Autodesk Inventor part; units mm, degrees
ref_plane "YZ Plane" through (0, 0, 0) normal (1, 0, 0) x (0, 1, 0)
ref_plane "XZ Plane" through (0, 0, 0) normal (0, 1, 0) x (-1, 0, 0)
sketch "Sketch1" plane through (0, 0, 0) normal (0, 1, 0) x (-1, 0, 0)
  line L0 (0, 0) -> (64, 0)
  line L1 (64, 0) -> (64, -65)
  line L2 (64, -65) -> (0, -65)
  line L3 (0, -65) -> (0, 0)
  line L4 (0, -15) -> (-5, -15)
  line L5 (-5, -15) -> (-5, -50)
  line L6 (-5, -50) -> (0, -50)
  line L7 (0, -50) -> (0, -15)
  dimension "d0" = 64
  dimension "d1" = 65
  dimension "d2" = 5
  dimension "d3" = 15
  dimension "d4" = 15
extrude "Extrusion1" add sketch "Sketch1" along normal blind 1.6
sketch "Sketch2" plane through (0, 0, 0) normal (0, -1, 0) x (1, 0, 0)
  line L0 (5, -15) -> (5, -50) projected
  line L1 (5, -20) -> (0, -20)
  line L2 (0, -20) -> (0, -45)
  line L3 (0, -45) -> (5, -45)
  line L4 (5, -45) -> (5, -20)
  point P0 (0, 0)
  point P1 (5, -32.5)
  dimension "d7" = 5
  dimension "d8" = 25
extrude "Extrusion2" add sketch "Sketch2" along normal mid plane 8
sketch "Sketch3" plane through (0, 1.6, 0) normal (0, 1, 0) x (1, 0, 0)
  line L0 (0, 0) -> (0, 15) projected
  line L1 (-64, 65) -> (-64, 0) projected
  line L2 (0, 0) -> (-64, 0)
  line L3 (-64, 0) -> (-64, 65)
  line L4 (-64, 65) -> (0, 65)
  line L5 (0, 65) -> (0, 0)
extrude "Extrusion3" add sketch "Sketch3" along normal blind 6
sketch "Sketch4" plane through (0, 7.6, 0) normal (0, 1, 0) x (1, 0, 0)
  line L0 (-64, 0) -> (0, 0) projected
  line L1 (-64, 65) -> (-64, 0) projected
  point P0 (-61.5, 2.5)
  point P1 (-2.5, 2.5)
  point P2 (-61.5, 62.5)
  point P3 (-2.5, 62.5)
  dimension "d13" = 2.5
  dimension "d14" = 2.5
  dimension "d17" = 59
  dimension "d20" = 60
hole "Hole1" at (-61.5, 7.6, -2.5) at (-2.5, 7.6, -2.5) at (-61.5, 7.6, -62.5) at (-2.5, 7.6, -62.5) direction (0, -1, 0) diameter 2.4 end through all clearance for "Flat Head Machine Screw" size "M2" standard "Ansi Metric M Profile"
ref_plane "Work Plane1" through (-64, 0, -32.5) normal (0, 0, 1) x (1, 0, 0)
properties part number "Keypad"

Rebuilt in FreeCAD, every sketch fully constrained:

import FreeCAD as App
import Part
import Sketcher

V = App.Vector


def add_polygon(sketch, points):
    """Adds a closed chain of lines whose ends are joined by coincident constraints."""
    first, n = sketch.GeometryCount, len(points)
    for a, b in zip(points, points[1:] + points[:1]):
        sketch.addGeometry(Part.LineSegment(App.Vector(*a, 0), App.Vector(*b, 0)), False)
    for i in range(n):
        sketch.addConstraint(Sketcher.Constraint("Coincident", first + i, 2, first + (i + 1) % n, 1))

doc = App.newDocument("Part")
params = doc.addObject("Spreadsheet::Sheet", "Params")
for row, (alias, value) in enumerate([
    ("sketch1_width", "64 mm"),
    ("sketch1_width2", "5 mm"),
    ("sketch1_height", "15 mm"),
    ("sketch1_height2", "65 mm"),
    ("pad1_length", "1.6 mm"),
    ("sketch2_width", "5 mm"),
    ("sketch2_height", "25 mm"),
    ("pad2_length", "8 mm"),
    ("sketch3_width", "64 mm"),
    ("sketch3_height", "65 mm"),
    ("pad3_length", "6 mm"),
    ("sketch4_diameter", "2.4 mm"),
    ("hole_diameter", "2.4 mm"),
], start=1):
    params.set(f"A{row}", alias)
    params.set(f"B{row}", "=" + value)
    params.setAlias(f"B{row}", alias)

body = doc.addObject("PartDesign::Body", "Body")

# Sketch on XZ plane
sketch1 = doc.addObject("Sketcher::SketchObject", "Sketch")
body.addObject(sketch1)
sketch1.AttachmentSupport = (doc.XZ_Plane, [""])
sketch1.MapMode = "FlatFace"
add_polygon(sketch1, [(-64, 0), (0, 0), (0, -15), (5, -15), (5, -50), (0, -50), (0, -65), (-64, -65)])  # lines 0-7
sketch1.addConstraint(Sketcher.Constraint("Horizontal", 0))
sketch1.addConstraint(Sketcher.Constraint("Vertical", 1))
sketch1.addConstraint(Sketcher.Constraint("Horizontal", 2))
sketch1.addConstraint(Sketcher.Constraint("Vertical", 3))
sketch1.addConstraint(Sketcher.Constraint("Horizontal", 4))
sketch1.addConstraint(Sketcher.Constraint("Vertical", 5))
sketch1.addConstraint(Sketcher.Constraint("Horizontal", 6))
sketch1.addConstraint(Sketcher.Constraint("Vertical", 7))
sketch1.addConstraint(Sketcher.Constraint("Coincident", 0, 2, -1, 1))
sketch1.addConstraint(Sketcher.Constraint("PointOnObject", 4, 2, -2))
sketch1.addConstraint(Sketcher.Constraint("Equal", 1, 5))
sketch1.addConstraint(Sketcher.Constraint("DistanceX", 0, 1, 0, 2, 64.0))
sketch1.addConstraint(Sketcher.Constraint("DistanceX", 2, 1, 2, 2, 5.0))
sketch1.addConstraint(Sketcher.Constraint("DistanceY", 1, 2, 1, 1, 15.0))
sketch1.addConstraint(Sketcher.Constraint("DistanceY", 7, 1, 7, 2, 65.0))
sketch1.setExpression("Constraints[19]", "Params.sketch1_width")
sketch1.setExpression("Constraints[20]", "Params.sketch1_width2")
sketch1.setExpression("Constraints[21]", "Params.sketch1_height")
sketch1.setExpression("Constraints[22]", "Params.sketch1_height2")
pad1 = doc.addObject("PartDesign::Pad", "Pad")
body.addObject(pad1)
pad1.Profile = sketch1
pad1.setExpression("Length", "Params.pad1_length")
pad1.Reversed = True

# Sketch on XZ plane
sketch2 = doc.addObject("Sketcher::SketchObject", "Sketch001")
body.addObject(sketch2)
sketch2.AttachmentSupport = (doc.XZ_Plane, [""])
sketch2.MapMode = "FlatFace"
add_polygon(sketch2, [(5, -45), (5, -20), (0, -20), (0, -45)])  # lines 0-3
sketch2.addConstraint(Sketcher.Constraint("Vertical", 0))
sketch2.addConstraint(Sketcher.Constraint("Horizontal", 1))
sketch2.addConstraint(Sketcher.Constraint("Vertical", 2))
sketch2.addConstraint(Sketcher.Constraint("Horizontal", 3))
sketch2.addConstraint(Sketcher.Constraint("PointOnObject", 1, 2, -2))
sketch2.addConstraint(Sketcher.Constraint("DistanceX", 1, 2, 1, 1, 5.0))
sketch2.addConstraint(Sketcher.Constraint("DistanceY", 0, 1, 0, 2, 25.0))
sketch2.addConstraint(Sketcher.Constraint("DistanceY", 0, 2, -1, 1, 20.0))
sketch2.setExpression("Constraints[9]", "Params.sketch2_width")
sketch2.setExpression("Constraints[10]", "Params.sketch2_height")
pad2 = doc.addObject("PartDesign::Pad", "Pad001")
body.addObject(pad2)
pad2.Profile = sketch2
pad2.setExpression("Length", "Params.pad2_length")
pad2.Midplane = True

# Sketch on XZ plane
sketch3 = doc.addObject("Sketcher::SketchObject", "Sketch002")
body.addObject(sketch3)
sketch3.AttachmentSupport = (doc.XZ_Plane, [""])
sketch3.MapMode = "FlatFace"
sketch3.AttachmentOffset = App.Placement(V(0, 0, -1.6), App.Rotation())
add_polygon(sketch3, [(-64, 0), (0, 0), (0, -65), (-64, -65)])  # lines 0-3
sketch3.addConstraint(Sketcher.Constraint("Horizontal", 0))
sketch3.addConstraint(Sketcher.Constraint("Vertical", 1))
sketch3.addConstraint(Sketcher.Constraint("Horizontal", 2))
sketch3.addConstraint(Sketcher.Constraint("Vertical", 3))
sketch3.addConstraint(Sketcher.Constraint("Coincident", 0, 2, -1, 1))
sketch3.addConstraint(Sketcher.Constraint("DistanceX", 0, 1, 0, 2, 64.0))
sketch3.addConstraint(Sketcher.Constraint("DistanceY", 1, 2, 1, 1, 65.0))
sketch3.setExpression("Constraints[9]", "Params.sketch3_width")
sketch3.setExpression("Constraints[10]", "Params.sketch3_height")
pad3 = doc.addObject("PartDesign::Pad", "Pad002")
body.addObject(pad3)
pad3.Profile = sketch3
pad3.setExpression("Length", "Params.pad3_length")
pad3.Reversed = True

# Sketch on XZ plane
sketch4 = doc.addObject("Sketcher::SketchObject", "Sketch003")
body.addObject(sketch4)
sketch4.AttachmentSupport = (doc.XZ_Plane, [""])
sketch4.MapMode = "FlatFace"
sketch4.AttachmentOffset = App.Placement(V(0, 0, -7.6), App.Rotation())
sketch4.addGeometry(Part.Circle(V(-61.5, -2.5, 0), V(0, 0, 1), 1.2), False)
sketch4.addGeometry(Part.Circle(V(-2.5, -2.5, 0), V(0, 0, 1), 1.2), False)
sketch4.addGeometry(Part.Circle(V(-61.5, -62.5, 0), V(0, 0, 1), 1.2), False)
sketch4.addGeometry(Part.Circle(V(-2.5, -62.5, 0), V(0, 0, 1), 1.2), False)
sketch4.addConstraint(Sketcher.Constraint("Equal", 0, 1))
sketch4.addConstraint(Sketcher.Constraint("Equal", 1, 2))
sketch4.addConstraint(Sketcher.Constraint("Equal", 2, 3))
sketch4.addConstraint(Sketcher.Constraint("Horizontal", 0, 3, 1, 3))
sketch4.addConstraint(Sketcher.Constraint("Horizontal", 2, 3, 3, 3))
sketch4.addConstraint(Sketcher.Constraint("Vertical", 0, 3, 2, 3))
sketch4.addConstraint(Sketcher.Constraint("Vertical", 1, 3, 3, 3))
sketch4.addConstraint(Sketcher.Constraint("Diameter", 0, 2.4))
sketch4.addConstraint(Sketcher.Constraint("DistanceX", 0, 3, 1, 3, 59.0))
sketch4.addConstraint(Sketcher.Constraint("DistanceY", 2, 3, 0, 3, 60.0))
sketch4.addConstraint(Sketcher.Constraint("DistanceX", 0, 3, -1, 1, 61.5))
sketch4.addConstraint(Sketcher.Constraint("DistanceY", 0, 3, -1, 1, 2.5))
sketch4.setExpression("Constraints[7]", "Params.sketch4_diameter")
doc.recompute()
hole = doc.addObject("PartDesign::Hole", "Hole")
body.addObject(hole)
hole.Profile = sketch4
hole.ThreadType = "None"
hole.setExpression("Diameter", "Params.hole_diameter")
hole.DepthType = "ThroughAll"
hole.Reversed = True

doc.recompute()
